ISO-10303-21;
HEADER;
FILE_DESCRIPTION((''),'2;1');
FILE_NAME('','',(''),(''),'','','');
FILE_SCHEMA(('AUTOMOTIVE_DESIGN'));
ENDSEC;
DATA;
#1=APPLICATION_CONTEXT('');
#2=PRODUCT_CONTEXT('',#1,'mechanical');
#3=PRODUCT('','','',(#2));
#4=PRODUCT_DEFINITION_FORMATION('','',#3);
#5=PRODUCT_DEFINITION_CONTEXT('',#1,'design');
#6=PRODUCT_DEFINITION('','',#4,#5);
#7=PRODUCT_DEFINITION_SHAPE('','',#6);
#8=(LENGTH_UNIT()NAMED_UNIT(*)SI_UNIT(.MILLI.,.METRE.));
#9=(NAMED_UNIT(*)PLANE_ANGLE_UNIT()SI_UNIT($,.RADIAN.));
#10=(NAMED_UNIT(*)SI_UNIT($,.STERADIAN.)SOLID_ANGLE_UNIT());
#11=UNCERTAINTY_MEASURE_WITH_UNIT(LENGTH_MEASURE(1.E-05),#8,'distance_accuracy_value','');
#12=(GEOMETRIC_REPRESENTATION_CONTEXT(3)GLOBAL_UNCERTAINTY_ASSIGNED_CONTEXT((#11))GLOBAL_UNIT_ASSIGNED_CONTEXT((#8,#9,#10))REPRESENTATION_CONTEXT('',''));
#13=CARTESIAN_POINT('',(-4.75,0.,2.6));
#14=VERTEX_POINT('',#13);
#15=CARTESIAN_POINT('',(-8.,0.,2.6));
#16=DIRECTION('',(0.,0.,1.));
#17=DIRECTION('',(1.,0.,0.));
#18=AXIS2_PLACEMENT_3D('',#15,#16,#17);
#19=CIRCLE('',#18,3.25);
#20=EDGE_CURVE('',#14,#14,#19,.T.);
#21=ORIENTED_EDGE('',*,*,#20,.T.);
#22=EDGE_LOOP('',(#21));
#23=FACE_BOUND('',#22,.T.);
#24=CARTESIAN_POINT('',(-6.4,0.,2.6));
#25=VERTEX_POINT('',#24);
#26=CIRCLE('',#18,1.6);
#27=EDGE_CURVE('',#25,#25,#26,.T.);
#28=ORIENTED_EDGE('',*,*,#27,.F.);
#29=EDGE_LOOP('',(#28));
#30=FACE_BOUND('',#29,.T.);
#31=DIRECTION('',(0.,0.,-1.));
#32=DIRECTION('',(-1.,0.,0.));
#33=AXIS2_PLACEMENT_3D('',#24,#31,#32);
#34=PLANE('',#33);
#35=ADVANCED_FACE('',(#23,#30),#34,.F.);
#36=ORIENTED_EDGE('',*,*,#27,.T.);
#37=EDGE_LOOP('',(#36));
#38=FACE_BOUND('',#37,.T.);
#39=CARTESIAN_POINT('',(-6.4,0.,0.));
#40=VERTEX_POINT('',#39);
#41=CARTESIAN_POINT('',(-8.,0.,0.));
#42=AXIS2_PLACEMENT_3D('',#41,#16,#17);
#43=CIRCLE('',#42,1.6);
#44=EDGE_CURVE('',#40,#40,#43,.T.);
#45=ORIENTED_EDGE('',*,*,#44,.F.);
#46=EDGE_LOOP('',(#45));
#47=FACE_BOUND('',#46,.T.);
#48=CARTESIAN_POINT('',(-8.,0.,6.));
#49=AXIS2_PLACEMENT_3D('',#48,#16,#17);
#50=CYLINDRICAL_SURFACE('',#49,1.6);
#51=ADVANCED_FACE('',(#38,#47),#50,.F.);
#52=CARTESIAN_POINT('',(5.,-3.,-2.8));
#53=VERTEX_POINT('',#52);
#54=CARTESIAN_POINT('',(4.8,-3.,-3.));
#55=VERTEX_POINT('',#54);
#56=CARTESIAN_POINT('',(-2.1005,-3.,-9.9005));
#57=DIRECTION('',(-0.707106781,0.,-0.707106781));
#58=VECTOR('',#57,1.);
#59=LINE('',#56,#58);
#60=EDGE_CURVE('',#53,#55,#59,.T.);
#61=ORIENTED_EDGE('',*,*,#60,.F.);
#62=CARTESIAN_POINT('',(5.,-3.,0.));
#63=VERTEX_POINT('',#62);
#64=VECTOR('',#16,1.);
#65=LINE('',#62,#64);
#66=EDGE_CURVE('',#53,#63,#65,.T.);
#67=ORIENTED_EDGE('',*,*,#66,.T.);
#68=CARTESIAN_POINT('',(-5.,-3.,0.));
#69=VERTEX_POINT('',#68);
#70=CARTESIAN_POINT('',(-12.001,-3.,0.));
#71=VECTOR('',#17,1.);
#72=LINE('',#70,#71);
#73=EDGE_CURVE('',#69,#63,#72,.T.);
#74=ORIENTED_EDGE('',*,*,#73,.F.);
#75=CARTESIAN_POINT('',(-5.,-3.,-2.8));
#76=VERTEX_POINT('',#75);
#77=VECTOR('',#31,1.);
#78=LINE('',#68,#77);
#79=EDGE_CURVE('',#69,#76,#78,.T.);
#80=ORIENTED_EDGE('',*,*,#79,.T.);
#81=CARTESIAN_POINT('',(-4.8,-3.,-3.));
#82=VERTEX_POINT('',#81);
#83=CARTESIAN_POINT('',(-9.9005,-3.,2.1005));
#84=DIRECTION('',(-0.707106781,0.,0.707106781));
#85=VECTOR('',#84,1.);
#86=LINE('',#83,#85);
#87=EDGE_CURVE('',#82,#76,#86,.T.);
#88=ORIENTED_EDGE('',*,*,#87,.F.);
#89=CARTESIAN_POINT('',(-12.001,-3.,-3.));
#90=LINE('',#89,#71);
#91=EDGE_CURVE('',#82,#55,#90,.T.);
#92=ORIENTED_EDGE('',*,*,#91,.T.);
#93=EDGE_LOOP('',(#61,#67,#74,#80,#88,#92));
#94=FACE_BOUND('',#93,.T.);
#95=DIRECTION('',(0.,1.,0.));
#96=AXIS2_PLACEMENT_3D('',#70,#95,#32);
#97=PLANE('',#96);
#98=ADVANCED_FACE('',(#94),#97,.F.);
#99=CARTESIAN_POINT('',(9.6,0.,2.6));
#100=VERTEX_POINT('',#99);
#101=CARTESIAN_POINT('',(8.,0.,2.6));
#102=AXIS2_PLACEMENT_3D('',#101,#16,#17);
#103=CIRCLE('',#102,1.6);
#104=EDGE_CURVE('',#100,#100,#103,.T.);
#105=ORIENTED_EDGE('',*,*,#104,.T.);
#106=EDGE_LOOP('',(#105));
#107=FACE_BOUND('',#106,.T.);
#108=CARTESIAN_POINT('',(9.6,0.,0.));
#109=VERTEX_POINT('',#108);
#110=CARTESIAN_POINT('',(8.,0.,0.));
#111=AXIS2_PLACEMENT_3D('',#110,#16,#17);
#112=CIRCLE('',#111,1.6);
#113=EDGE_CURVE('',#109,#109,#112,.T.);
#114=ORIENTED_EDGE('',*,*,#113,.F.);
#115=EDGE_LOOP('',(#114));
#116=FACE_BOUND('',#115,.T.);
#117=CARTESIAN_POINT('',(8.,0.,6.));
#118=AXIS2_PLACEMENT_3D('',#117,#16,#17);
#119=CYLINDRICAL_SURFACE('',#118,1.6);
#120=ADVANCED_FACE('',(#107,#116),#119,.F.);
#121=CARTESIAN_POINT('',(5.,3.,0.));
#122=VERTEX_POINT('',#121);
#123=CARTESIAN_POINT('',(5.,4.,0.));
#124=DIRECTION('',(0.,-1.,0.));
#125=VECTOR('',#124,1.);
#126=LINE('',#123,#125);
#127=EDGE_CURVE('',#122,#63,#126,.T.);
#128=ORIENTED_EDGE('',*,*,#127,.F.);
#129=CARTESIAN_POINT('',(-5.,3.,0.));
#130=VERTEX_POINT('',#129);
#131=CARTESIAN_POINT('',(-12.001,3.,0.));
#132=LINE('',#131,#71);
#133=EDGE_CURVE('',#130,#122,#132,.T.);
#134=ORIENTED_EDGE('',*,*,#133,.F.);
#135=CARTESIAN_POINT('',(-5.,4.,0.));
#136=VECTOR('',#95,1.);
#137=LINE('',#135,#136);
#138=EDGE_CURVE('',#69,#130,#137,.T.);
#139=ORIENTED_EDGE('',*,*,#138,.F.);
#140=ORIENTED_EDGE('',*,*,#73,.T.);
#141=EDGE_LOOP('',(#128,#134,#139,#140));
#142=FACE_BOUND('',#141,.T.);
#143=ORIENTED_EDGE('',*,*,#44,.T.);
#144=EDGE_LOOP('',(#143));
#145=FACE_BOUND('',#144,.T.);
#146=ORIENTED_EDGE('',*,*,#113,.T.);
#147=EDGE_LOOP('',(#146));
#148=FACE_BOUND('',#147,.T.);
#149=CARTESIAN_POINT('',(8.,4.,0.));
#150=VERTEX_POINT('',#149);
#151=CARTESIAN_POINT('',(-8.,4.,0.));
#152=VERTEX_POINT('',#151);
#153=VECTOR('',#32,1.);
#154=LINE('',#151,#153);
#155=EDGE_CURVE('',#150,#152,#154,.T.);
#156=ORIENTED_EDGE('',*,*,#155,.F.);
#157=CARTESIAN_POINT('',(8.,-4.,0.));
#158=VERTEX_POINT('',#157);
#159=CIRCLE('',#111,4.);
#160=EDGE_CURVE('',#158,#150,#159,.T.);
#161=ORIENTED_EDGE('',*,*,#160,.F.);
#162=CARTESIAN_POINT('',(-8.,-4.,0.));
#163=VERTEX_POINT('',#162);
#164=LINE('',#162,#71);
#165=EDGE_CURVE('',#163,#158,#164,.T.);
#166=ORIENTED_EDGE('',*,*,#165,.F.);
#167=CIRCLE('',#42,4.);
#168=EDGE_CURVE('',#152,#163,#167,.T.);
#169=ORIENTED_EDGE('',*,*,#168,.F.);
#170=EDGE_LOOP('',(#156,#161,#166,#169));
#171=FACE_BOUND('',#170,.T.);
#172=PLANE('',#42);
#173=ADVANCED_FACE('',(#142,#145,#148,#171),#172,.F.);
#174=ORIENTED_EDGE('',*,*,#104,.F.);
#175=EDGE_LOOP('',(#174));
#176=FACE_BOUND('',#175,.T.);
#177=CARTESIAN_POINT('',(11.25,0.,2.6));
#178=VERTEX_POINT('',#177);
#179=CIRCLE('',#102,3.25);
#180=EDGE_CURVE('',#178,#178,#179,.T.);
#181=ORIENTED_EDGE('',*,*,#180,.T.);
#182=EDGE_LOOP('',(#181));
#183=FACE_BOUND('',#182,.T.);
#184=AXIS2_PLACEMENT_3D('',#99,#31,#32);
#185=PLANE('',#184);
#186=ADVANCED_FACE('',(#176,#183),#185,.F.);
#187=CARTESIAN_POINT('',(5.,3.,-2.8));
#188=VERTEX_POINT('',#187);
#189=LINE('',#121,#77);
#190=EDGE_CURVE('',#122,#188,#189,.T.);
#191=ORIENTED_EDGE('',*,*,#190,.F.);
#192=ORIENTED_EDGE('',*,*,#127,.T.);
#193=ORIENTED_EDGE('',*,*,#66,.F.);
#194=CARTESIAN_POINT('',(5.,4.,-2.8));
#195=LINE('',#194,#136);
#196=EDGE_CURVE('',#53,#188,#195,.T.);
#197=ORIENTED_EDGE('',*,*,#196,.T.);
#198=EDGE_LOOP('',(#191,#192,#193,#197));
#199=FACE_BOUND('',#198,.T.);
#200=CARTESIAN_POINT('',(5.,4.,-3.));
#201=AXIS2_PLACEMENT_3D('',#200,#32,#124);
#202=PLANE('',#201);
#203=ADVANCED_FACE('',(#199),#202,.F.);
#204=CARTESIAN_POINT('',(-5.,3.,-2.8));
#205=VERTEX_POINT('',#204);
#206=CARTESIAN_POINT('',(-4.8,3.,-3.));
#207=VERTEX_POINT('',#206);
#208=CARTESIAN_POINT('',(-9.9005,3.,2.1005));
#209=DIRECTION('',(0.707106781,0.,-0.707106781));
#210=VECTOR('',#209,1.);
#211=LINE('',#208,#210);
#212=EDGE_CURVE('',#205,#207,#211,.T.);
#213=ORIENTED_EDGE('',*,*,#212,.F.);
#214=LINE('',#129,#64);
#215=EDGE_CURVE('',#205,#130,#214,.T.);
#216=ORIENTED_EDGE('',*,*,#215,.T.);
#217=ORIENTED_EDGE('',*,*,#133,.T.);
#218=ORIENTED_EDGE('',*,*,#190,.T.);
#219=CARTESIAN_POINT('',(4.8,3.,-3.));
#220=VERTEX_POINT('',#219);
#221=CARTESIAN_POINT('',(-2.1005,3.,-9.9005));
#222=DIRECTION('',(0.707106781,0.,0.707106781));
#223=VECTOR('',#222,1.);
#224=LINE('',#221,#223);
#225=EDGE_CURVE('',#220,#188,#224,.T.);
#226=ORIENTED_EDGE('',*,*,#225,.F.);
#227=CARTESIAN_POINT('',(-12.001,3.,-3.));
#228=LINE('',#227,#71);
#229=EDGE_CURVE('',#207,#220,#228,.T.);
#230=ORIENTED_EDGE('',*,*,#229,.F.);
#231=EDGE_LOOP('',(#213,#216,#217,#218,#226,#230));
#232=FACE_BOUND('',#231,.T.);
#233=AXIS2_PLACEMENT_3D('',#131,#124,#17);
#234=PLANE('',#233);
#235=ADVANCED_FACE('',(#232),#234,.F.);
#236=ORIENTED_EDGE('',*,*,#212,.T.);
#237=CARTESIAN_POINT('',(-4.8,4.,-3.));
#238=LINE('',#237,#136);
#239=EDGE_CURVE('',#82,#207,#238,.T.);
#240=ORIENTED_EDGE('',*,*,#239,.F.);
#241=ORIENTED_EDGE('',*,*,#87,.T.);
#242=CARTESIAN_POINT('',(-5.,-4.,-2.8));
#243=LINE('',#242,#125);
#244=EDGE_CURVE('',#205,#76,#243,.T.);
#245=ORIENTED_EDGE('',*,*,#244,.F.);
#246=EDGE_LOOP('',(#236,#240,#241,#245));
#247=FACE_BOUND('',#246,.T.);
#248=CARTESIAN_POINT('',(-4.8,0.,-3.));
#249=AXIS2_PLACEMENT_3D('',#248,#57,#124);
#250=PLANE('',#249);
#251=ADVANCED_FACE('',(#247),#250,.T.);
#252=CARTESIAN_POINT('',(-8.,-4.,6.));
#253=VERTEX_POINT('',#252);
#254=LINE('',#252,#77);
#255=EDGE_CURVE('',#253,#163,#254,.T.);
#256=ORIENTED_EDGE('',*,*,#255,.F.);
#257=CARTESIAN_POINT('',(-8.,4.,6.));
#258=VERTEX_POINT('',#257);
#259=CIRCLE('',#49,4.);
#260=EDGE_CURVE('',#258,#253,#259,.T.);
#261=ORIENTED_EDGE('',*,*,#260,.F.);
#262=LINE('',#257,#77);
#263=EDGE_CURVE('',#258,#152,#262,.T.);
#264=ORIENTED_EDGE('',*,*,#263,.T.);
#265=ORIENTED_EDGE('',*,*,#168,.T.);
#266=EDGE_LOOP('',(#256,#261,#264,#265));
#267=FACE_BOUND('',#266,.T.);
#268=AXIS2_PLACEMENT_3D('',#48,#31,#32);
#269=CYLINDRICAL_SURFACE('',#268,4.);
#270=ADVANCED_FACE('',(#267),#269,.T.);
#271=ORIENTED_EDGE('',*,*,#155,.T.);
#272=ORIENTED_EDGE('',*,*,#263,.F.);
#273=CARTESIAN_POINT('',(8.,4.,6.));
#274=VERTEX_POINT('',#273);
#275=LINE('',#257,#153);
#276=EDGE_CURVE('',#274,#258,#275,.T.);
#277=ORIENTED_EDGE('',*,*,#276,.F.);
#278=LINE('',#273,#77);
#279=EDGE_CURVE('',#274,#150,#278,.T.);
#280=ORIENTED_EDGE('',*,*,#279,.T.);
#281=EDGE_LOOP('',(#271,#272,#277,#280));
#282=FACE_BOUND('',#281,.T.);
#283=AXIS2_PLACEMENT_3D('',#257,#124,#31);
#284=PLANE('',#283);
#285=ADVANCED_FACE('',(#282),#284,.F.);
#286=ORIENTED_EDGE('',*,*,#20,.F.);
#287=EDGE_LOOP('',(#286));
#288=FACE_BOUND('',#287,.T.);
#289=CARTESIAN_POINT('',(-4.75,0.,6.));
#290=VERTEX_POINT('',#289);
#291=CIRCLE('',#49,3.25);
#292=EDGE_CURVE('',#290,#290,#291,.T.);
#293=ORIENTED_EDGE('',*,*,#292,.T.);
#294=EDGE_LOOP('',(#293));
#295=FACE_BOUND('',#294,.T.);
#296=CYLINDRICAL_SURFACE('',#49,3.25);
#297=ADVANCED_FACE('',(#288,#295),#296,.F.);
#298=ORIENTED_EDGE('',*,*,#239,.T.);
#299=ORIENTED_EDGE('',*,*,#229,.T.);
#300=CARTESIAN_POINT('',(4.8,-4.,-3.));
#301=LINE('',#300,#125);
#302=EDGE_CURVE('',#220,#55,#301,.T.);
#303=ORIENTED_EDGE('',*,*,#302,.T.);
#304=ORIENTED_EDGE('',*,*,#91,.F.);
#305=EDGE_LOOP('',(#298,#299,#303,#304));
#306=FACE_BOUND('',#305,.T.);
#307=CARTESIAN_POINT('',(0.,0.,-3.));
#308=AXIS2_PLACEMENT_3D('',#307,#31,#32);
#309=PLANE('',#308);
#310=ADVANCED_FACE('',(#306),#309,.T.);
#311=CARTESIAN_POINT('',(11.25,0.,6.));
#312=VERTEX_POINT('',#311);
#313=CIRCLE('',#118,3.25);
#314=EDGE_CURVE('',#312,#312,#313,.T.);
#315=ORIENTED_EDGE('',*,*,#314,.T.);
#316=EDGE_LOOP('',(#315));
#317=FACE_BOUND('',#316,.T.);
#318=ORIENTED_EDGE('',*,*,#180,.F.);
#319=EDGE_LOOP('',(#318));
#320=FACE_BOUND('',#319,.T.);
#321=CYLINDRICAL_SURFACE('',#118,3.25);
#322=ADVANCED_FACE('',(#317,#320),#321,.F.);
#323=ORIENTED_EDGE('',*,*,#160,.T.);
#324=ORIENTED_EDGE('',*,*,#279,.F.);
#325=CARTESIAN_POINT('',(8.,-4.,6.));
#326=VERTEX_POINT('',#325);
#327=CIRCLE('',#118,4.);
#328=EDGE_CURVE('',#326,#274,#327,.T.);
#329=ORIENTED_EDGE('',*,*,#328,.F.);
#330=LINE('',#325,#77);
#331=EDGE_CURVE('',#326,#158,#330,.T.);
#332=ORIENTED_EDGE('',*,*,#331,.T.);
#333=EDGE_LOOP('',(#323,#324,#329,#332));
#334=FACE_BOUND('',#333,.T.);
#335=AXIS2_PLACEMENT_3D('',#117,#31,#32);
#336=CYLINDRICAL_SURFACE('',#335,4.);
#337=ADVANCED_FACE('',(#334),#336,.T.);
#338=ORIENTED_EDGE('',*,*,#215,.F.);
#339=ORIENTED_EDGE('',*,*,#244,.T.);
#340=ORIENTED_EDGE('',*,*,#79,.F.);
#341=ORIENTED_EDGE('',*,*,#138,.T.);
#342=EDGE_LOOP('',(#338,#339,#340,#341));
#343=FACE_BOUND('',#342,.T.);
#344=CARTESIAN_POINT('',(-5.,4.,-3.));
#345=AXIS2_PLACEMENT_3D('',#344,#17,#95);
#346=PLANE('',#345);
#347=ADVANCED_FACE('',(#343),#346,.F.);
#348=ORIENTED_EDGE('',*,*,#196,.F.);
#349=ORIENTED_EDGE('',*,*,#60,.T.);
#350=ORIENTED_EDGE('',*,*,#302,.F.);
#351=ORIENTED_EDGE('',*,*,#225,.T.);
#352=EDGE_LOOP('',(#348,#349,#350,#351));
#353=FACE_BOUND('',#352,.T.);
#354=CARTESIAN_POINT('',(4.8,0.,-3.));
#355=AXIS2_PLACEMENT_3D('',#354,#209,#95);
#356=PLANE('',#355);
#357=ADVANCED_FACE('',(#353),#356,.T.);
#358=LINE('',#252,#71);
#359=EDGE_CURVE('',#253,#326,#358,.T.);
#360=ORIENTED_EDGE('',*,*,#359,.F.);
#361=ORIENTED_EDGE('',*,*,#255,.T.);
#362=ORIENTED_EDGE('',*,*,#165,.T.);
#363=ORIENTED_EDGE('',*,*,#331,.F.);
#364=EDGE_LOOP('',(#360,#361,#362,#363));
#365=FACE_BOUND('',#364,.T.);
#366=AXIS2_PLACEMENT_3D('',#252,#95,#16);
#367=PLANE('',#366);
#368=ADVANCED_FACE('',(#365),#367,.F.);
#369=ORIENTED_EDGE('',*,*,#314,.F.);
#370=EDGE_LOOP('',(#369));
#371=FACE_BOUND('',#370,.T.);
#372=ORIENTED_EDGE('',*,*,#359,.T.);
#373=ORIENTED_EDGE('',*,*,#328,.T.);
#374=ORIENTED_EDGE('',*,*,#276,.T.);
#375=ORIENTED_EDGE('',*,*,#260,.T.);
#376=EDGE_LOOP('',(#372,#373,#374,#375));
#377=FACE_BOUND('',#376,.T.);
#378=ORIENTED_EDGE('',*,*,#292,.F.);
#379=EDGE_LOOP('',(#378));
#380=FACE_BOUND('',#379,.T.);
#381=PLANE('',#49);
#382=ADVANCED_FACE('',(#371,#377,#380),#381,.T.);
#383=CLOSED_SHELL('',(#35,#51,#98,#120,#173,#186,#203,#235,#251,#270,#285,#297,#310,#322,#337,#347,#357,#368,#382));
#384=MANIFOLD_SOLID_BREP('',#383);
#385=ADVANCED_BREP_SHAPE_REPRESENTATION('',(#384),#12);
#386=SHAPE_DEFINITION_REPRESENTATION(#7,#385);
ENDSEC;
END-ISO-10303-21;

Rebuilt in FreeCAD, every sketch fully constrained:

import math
import FreeCAD as App
import Part
import Sketcher


def edges_at(feature, points):
    """Names of the edges that pass closest to the given points."""
    edges = feature.Shape.Edges
    near = lambda p: min(range(len(edges)), key=lambda i: edges[i].distToShape(Part.Vertex(*p))[0])
    return sorted({f"Edge{near(p) + 1}" for p in points})


def add_polygon(sketch, points):
    """Adds a closed chain of lines whose ends are joined by coincident constraints."""
    first, n = sketch.GeometryCount, len(points)
    for a, b in zip(points, points[1:] + points[:1]):
        sketch.addGeometry(Part.LineSegment(App.Vector(*a, 0), App.Vector(*b, 0)), False)
    for i in range(n):
        sketch.addConstraint(Sketcher.Constraint("Coincident", first + i, 2, first + (i + 1) % n, 1))

doc = App.newDocument("Part")
body = doc.addObject("PartDesign::Body", "Body")

sketch1 = body.newObject("Sketcher::SketchObject", "Sketch")
sketch1.AttachmentSupport = (doc.getObject("XY_Plane"), [""])
sketch1.MapMode = "FlatFace"
sketch1.addGeometry([
    Part.LineSegment(App.Vector(8, 4, 0), App.Vector(-8, 4, 0)),
    Part.ArcOfCircle(Part.Circle(App.Vector(-8, 0, 0), App.Vector(0, 0, 1), 4), math.radians(90), math.radians(270)),
    Part.LineSegment(App.Vector(-8, -4, 0), App.Vector(8, -4, 0)),
    Part.ArcOfCircle(Part.Circle(App.Vector(8, 0, 0), App.Vector(0, 0, 1), 4), math.radians(-90), math.radians(90)),
], False)
sketch1.addConstraint([
    Sketcher.Constraint("Tangent", 0, 2, 1, 1),
    Sketcher.Constraint("Tangent", 1, 2, 2, 1),
    Sketcher.Constraint("Tangent", 2, 2, 3, 1),
    Sketcher.Constraint("Tangent", 3, 2, 0, 1),
    Sketcher.Constraint("Horizontal", 0),
    Sketcher.Constraint("Horizontal", 2),
    Sketcher.Constraint("Symmetric", 1, 3, 3, 3, -1, 1),
    Sketcher.Constraint("Radius", 1, 4.0),
    Sketcher.Constraint("DistanceX", 0, 2, 0, 1, 16.0),
])
pad1 = body.newObject("PartDesign::Pad", "Pad")
pad1.Profile = sketch1
pad1.Length = 6

sketch2 = body.newObject("Sketcher::SketchObject", "Sketch001")
sketch2.AttachmentSupport = (doc.getObject("XY_Plane"), [""])
sketch2.MapMode = "FlatFace"
sketch2.AttachmentOffset = App.Placement(App.Vector(0, 0, 6), App.Rotation())
sketch2.addGeometry([
    Part.Circle(App.Vector(-8, 0, 0), App.Vector(0, 0, 1), 1.6),
    Part.Circle(App.Vector(8, 0, 0), App.Vector(0, 0, 1), 1.6),
], False)
sketch2.addConstraint([
    Sketcher.Constraint("Equal", 0, 1),
    Sketcher.Constraint("Symmetric", 0, 3, 1, 3, -1, 1),
    Sketcher.Constraint("PointOnObject", 0, 3, -1),
    Sketcher.Constraint("Diameter", 0, 3.2),
    Sketcher.Constraint("DistanceX", 0, 3, -1, 1, 8.0),
])
doc.recompute()
hole = body.newObject("PartDesign::Hole", "Hole")
hole.Profile = sketch2
hole.ThreadType = "None"
hole.Diameter = 3.2
hole.DepthType = "ThroughAll"
hole.HoleCutType = "Counterbore"
hole.HoleCutDiameter = 6.5
hole.HoleCutDepth = 3.4

sketch3 = body.newObject("Sketcher::SketchObject", "Sketch002")
sketch3.AttachmentSupport = (doc.getObject("XY_Plane"), [""])
sketch3.MapMode = "FlatFace"
add_polygon(sketch3, [(5, 4), (5, -4), (-5, -4), (-5, 4)])
sketch3.addConstraint([
    Sketcher.Constraint("Vertical", 0),
    Sketcher.Constraint("Horizontal", 1),
    Sketcher.Constraint("Vertical", 2),
    Sketcher.Constraint("Horizontal", 3),
    Sketcher.Constraint("Symmetric", 0, 2, 2, 2, -1, 1),
    Sketcher.Constraint("DistanceX", 1, 2, 1, 1, 10.0),
    Sketcher.Constraint("DistanceY", 0, 2, 0, 1, 8.0),
])
pad2 = body.newObject("PartDesign::Pad", "Pad001")
pad2.Profile = sketch3
pad2.Length = 3
pad2.Reversed = True
doc.recompute()

chamfer = body.newObject("PartDesign::Chamfer", "Chamfer")
chamfer.Base = (pad2, edges_at(pad2, [(5, 0, -3), (-5, 0, -3)]))
chamfer.Size = 0.2

sketch4 = body.newObject("Sketcher::SketchObject", "Sketch003")
sketch4.AttachmentSupport = (doc.getObject("YZ_Plane"), [""])
sketch4.MapMode = "FlatFace"
sketch4.AttachmentOffset = App.Placement(App.Vector(0, 0, 5), App.Rotation())
add_polygon(sketch4, [(4, 0), (3, 0), (3, -3), (4, -3)])
sketch4.addConstraint([
    Sketcher.Constraint("Horizontal", 0),
    Sketcher.Constraint("Vertical", 1),
    Sketcher.Constraint("Horizontal", 2),
    Sketcher.Constraint("Vertical", 3),
    Sketcher.Constraint("PointOnObject", 0, 2, -1),
    Sketcher.Constraint("DistanceX", 0, 2, 0, 1, 1.0),
    Sketcher.Constraint("DistanceY", 1, 2, 1, 1, 3.0),
    Sketcher.Constraint("DistanceX", -1, 1, 0, 2, 3.0),
])
pocket1 = body.newObject("PartDesign::Pocket", "Pocket")
pocket1.Profile = sketch4
pocket1.Type = "UpToFirst"

sketch5 = body.newObject("Sketcher::SketchObject", "Sketch004")
sketch5.AttachmentSupport = (doc.getObject("YZ_Plane"), [""])
sketch5.MapMode = "FlatFace"
sketch5.AttachmentOffset = App.Placement(App.Vector(0, 0, 5), App.Rotation())
add_polygon(sketch5, [(-3, 0), (-4, 0), (-4, -3), (-3, -3)])
sketch5.addConstraint([
    Sketcher.Constraint("Horizontal", 0),
    Sketcher.Constraint("Vertical", 1),
    Sketcher.Constraint("Horizontal", 2),
    Sketcher.Constraint("Vertical", 3),
    Sketcher.Constraint("PointOnObject", 0, 2, -1),
    Sketcher.Constraint("DistanceX", 0, 2, 0, 1, 1.0),
    Sketcher.Constraint("DistanceY", 1, 2, 1, 1, 3.0),
    Sketcher.Constraint("DistanceX", 0, 2, -1, 1, 4.0),
])
pocket2 = body.newObject("PartDesign::Pocket", "Pocket001")
pocket2.Profile = sketch5
pocket2.Type = "UpToFirst"

doc.recompute()
